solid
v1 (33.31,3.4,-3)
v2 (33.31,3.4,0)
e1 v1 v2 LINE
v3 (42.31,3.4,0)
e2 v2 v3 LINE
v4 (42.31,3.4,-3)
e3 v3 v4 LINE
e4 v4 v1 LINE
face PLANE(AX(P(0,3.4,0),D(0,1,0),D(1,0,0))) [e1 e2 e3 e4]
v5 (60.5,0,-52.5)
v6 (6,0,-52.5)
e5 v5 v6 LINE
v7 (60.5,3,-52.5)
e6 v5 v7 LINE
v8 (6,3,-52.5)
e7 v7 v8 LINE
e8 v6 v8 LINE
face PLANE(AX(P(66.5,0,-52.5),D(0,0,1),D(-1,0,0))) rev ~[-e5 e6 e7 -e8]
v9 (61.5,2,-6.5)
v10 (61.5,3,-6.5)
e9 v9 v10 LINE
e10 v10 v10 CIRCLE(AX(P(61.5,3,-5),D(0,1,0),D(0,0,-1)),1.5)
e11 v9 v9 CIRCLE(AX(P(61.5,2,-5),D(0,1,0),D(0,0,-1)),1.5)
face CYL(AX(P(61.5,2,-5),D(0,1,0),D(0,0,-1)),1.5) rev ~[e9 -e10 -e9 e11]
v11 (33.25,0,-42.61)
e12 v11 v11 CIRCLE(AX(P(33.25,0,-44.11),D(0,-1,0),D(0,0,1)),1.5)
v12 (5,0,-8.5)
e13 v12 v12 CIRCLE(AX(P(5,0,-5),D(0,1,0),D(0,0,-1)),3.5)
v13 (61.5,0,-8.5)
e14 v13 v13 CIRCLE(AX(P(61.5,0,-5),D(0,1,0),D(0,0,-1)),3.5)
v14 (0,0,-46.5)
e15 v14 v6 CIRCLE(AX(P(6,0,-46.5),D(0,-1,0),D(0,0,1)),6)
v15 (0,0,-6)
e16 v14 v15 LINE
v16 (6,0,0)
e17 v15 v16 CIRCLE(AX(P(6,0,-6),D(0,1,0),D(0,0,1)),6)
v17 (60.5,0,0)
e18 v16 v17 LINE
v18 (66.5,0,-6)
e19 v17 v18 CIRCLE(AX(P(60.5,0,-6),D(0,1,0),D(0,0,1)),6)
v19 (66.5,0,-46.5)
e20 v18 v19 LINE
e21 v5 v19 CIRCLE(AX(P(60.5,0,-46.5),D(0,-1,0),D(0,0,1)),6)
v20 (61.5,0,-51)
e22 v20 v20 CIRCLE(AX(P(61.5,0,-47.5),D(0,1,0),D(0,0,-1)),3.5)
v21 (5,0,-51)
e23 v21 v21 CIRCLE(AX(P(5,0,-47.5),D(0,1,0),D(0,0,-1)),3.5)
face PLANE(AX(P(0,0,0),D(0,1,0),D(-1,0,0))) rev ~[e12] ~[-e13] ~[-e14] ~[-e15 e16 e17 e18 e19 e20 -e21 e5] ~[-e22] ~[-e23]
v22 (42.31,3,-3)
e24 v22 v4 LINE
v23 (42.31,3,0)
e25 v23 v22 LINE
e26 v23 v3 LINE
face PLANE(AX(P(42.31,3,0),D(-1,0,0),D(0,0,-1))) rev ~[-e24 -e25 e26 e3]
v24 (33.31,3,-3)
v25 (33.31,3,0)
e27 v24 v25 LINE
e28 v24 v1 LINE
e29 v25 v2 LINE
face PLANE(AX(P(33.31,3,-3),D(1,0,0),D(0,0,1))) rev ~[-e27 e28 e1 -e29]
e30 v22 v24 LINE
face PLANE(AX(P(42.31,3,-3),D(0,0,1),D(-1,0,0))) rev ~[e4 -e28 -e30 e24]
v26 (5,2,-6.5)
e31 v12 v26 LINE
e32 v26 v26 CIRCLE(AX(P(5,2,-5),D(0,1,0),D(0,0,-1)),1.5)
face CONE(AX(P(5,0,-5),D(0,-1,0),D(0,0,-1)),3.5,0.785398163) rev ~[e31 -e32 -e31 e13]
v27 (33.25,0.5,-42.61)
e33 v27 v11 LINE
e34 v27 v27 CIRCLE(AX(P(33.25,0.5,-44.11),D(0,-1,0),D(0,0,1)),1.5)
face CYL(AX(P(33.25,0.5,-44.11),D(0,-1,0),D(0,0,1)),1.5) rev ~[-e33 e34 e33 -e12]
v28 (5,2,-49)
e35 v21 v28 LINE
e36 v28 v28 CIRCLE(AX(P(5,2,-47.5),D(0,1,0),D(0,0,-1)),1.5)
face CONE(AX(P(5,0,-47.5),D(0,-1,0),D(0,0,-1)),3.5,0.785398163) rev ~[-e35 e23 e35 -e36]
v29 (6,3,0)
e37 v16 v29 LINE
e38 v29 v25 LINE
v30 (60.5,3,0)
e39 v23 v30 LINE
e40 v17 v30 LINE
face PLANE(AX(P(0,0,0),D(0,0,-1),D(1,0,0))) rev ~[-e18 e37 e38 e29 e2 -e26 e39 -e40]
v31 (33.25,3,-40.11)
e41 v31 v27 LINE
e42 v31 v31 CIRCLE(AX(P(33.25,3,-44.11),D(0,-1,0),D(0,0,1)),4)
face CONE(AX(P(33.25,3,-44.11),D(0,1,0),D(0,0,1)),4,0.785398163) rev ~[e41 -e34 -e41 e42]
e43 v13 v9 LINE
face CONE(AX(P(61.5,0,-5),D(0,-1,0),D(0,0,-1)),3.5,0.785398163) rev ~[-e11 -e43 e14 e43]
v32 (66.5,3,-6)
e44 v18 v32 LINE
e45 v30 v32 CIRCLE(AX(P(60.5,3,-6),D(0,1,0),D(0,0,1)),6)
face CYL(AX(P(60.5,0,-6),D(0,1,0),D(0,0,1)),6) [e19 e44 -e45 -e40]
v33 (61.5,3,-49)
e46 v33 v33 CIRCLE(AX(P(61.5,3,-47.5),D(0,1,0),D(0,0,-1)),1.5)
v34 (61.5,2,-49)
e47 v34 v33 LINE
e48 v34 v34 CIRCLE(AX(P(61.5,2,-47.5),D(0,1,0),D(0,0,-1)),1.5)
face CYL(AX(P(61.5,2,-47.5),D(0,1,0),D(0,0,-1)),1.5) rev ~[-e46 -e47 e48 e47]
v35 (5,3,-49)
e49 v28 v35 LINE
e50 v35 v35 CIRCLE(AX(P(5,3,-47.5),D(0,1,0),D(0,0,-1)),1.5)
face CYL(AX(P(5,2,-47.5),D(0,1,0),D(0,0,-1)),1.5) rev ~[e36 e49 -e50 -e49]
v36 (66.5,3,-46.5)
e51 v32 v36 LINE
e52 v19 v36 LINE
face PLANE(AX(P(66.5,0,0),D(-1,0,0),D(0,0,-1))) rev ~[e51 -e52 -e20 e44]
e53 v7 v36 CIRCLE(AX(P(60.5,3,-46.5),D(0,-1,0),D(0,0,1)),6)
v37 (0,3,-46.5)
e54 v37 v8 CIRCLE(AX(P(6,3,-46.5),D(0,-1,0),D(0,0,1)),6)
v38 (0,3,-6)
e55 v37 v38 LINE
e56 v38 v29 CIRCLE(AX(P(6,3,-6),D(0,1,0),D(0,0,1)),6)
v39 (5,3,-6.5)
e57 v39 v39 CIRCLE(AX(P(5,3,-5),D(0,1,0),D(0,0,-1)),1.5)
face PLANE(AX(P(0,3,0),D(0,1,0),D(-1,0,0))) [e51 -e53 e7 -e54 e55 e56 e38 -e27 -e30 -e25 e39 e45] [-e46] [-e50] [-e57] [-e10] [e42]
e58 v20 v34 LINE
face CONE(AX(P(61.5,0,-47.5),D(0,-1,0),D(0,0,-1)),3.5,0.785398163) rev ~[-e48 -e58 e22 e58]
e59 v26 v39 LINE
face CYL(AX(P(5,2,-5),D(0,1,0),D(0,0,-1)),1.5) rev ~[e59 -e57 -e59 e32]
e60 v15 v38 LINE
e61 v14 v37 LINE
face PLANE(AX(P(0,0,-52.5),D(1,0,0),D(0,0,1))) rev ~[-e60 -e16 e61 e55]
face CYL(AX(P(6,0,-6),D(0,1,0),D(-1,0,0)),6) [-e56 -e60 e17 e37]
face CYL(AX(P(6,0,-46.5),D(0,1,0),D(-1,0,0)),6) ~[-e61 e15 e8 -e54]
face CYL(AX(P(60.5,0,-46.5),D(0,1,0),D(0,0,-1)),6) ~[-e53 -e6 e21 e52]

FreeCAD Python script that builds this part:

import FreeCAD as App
import Part
import Sketcher
from FreeCAD import Vector


def edges_at(feature, points):
    """Names of the edges that pass closest to the given points."""
    edges = feature.Shape.Edges
    near = lambda p: min(range(len(edges)), key=lambda i: edges[i].distToShape(Part.Vertex(*p))[0])
    return sorted({f"Edge{near(p) + 1}" for p in points})

doc = App.newDocument("Part")
body = doc.addObject("PartDesign::Body", "Body")

sketch1 = doc.addObject("Sketcher::SketchObject", "Sketch")
body.addObject(sketch1)
sketch1.AttachmentSupport = (doc.XZ_Plane, [""])
sketch1.MapMode = "FlatFace"
sketch1.addGeometry([
    Part.LineSegment(Vector(0, -52, 0), Vector(0, 0, 0)),
    Part.LineSegment(Vector(0, 0, 0), Vector(66, 0, 0)),
    Part.LineSegment(Vector(66, 0, 0), Vector(66, -52, 0)),
    Part.LineSegment(Vector(66, -52, 0), Vector(0, -52, 0)),
], False)
sketch1.addConstraint([
    Sketcher.Constraint("Coincident", 0, 2, 1, 1),
    Sketcher.Constraint("Coincident", 1, 2, 2, 1),
    Sketcher.Constraint("Coincident", 2, 2, 3, 1),
    Sketcher.Constraint("Coincident", 3, 2, 0, 1),
    Sketcher.Constraint("Vertical", 0),
    Sketcher.Constraint("Horizontal", 1),
    Sketcher.Constraint("Vertical", 2),
    Sketcher.Constraint("Horizontal", 3),
    Sketcher.Constraint("Coincident", 0, 2, -1, 1),
    Sketcher.Constraint("DistanceX", 1, 1, 1, 2, 66.5),
    Sketcher.Constraint("DistanceY", 0, 1, 0, 2, 52.5),
])
pad1 = doc.addObject("PartDesign::Pad", "Pad")
body.addObject(pad1)
pad1.Profile = sketch1
pad1.Length = 3
pad1.Reversed = True

sketch2 = doc.addObject("Sketcher::SketchObject", "Sketch001")
body.addObject(sketch2)
sketch2.AttachmentSupport = (doc.XZ_Plane, [""])
sketch2.MapMode = "FlatFace"
sketch2.AttachmentOffset = App.Placement(Vector(0, 0, -3), App.Rotation())
sketch2.addGeometry([
    Part.LineSegment(Vector(33.3, -3, 0), Vector(33.3, 0, 0)),
    Part.LineSegment(Vector(33.3, 0, 0), Vector(42.3, 0, 0)),
    Part.LineSegment(Vector(42.3, 0, 0), Vector(42.3, -3, 0)),
    Part.LineSegment(Vector(42.3, -3, 0), Vector(33.3, -3, 0)),
], False)
sketch2.addConstraint([
    Sketcher.Constraint("Coincident", 0, 2, 1, 1),
    Sketcher.Constraint("Coincident", 1, 2, 2, 1),
    Sketcher.Constraint("Coincident", 2, 2, 3, 1),
    Sketcher.Constraint("Coincident", 3, 2, 0, 1),
    Sketcher.Constraint("Vertical", 0),
    Sketcher.Constraint("Horizontal", 1),
    Sketcher.Constraint("Vertical", 2),
    Sketcher.Constraint("Horizontal", 3),
    Sketcher.Constraint("PointOnObject", 0, 2, -1),
    Sketcher.Constraint("DistanceX", 1, 1, 1, 2, 9.0),
    Sketcher.Constraint("DistanceY", 0, 1, 0, 2, 3.0),
    Sketcher.Constraint("DistanceX", -1, 1, 0, 2, 33.31),
])
pad2 = doc.addObject("PartDesign::Pad", "Pad001")
body.addObject(pad2)
pad2.Profile = sketch2
pad2.Length = 0.4
pad2.Reversed = True

sketch3 = doc.addObject("Sketcher::SketchObject", "Sketch002")
body.addObject(sketch3)
sketch3.AttachmentSupport = (doc.XZ_Plane, [""])
sketch3.MapMode = "FlatFace"
sketch3.addGeometry([
    Part.Circle(Vector(61.5, -47.5, 0), Vector(0, 0, 1), 1.5),
    Part.Circle(Vector(5, -47.5, 0), Vector(0, 0, 1), 1.5),
    Part.Circle(Vector(5, -5, 0), Vector(0, 0, 1), 1.5),
    Part.Circle(Vector(61.5, -5, 0), Vector(0, 0, 1), 1.5),
], False)
sketch3.addConstraint([
    Sketcher.Constraint("Equal", 0, 1),
    Sketcher.Constraint("Equal", 1, 2),
    Sketcher.Constraint("Equal", 2, 3),
    Sketcher.Constraint("Horizontal", 0, 3, 1, 3),
    Sketcher.Constraint("Horizontal", 2, 3, 3, 3),
    Sketcher.Constraint("Vertical", 1, 3, 2, 3),
    Sketcher.Constraint("Vertical", 0, 3, 3, 3),
    Sketcher.Constraint("Diameter", 0, 3.0),
    Sketcher.Constraint("DistanceX", -1, 1, 1, 3, 5.0),
    Sketcher.Constraint("DistanceY", 2, 3, -1, 1, 5.0),
    Sketcher.Constraint("DistanceX", -1, 1, 0, 3, 61.5),
    Sketcher.Constraint("DistanceY", 0, 3, -1, 1, 47.5),
])
doc.recompute()
hole = doc.addObject("PartDesign::Hole", "Hole")
body.addObject(hole)
hole.Profile = sketch3
hole.ThreadType = "None"
hole.Diameter = 3
hole.DepthType = "ThroughAll"
hole.HoleCutType = "Countersink"
hole.HoleCutDiameter = 7
hole.HoleCutCountersinkAngle = 90

sketch4 = doc.addObject("Sketcher::SketchObject", "Sketch003")
body.addObject(sketch4)
sketch4.AttachmentSupport = (doc.XZ_Plane, [""])
sketch4.MapMode = "FlatFace"
sketch4.AttachmentOffset = App.Placement(Vector(0, 0, -3), App.Rotation())
sketch4.addGeometry(Part.Circle(Vector(33.2, -44.1, 0), Vector(0, 0, 1), 1.5), False)
sketch4.addConstraint([
    Sketcher.Constraint("Diameter", 0, 3.0),
    Sketcher.Constraint("DistanceX", -1, 1, 0, 3, 33.25),
    Sketcher.Constraint("DistanceY", 0, 3, -1, 1, 44.11),
])
doc.recompute()
hole2 = doc.addObject("PartDesign::Hole", "Hole001")
body.addObject(hole2)
hole2.Profile = sketch4
hole2.ThreadType = "None"
hole2.Diameter = 3
hole2.DepthType = "ThroughAll"
hole2.HoleCutType = "Countersink"
hole2.HoleCutDiameter = 8
hole2.HoleCutCountersinkAngle = 90
hole2.Reversed = True
doc.recompute()

fillet = doc.addObject("PartDesign::Fillet", "Fillet")
body.addObject(fillet)
fillet.Base = (hole2, edges_at(hole2, [
    (0, 1.5, -52.5),
    (66.5, 1.5, -52.5),
    (66.5, 1.5, 0),
    (0, 1.5, 0),
]))
fillet.Radius = 6

doc.recompute()
